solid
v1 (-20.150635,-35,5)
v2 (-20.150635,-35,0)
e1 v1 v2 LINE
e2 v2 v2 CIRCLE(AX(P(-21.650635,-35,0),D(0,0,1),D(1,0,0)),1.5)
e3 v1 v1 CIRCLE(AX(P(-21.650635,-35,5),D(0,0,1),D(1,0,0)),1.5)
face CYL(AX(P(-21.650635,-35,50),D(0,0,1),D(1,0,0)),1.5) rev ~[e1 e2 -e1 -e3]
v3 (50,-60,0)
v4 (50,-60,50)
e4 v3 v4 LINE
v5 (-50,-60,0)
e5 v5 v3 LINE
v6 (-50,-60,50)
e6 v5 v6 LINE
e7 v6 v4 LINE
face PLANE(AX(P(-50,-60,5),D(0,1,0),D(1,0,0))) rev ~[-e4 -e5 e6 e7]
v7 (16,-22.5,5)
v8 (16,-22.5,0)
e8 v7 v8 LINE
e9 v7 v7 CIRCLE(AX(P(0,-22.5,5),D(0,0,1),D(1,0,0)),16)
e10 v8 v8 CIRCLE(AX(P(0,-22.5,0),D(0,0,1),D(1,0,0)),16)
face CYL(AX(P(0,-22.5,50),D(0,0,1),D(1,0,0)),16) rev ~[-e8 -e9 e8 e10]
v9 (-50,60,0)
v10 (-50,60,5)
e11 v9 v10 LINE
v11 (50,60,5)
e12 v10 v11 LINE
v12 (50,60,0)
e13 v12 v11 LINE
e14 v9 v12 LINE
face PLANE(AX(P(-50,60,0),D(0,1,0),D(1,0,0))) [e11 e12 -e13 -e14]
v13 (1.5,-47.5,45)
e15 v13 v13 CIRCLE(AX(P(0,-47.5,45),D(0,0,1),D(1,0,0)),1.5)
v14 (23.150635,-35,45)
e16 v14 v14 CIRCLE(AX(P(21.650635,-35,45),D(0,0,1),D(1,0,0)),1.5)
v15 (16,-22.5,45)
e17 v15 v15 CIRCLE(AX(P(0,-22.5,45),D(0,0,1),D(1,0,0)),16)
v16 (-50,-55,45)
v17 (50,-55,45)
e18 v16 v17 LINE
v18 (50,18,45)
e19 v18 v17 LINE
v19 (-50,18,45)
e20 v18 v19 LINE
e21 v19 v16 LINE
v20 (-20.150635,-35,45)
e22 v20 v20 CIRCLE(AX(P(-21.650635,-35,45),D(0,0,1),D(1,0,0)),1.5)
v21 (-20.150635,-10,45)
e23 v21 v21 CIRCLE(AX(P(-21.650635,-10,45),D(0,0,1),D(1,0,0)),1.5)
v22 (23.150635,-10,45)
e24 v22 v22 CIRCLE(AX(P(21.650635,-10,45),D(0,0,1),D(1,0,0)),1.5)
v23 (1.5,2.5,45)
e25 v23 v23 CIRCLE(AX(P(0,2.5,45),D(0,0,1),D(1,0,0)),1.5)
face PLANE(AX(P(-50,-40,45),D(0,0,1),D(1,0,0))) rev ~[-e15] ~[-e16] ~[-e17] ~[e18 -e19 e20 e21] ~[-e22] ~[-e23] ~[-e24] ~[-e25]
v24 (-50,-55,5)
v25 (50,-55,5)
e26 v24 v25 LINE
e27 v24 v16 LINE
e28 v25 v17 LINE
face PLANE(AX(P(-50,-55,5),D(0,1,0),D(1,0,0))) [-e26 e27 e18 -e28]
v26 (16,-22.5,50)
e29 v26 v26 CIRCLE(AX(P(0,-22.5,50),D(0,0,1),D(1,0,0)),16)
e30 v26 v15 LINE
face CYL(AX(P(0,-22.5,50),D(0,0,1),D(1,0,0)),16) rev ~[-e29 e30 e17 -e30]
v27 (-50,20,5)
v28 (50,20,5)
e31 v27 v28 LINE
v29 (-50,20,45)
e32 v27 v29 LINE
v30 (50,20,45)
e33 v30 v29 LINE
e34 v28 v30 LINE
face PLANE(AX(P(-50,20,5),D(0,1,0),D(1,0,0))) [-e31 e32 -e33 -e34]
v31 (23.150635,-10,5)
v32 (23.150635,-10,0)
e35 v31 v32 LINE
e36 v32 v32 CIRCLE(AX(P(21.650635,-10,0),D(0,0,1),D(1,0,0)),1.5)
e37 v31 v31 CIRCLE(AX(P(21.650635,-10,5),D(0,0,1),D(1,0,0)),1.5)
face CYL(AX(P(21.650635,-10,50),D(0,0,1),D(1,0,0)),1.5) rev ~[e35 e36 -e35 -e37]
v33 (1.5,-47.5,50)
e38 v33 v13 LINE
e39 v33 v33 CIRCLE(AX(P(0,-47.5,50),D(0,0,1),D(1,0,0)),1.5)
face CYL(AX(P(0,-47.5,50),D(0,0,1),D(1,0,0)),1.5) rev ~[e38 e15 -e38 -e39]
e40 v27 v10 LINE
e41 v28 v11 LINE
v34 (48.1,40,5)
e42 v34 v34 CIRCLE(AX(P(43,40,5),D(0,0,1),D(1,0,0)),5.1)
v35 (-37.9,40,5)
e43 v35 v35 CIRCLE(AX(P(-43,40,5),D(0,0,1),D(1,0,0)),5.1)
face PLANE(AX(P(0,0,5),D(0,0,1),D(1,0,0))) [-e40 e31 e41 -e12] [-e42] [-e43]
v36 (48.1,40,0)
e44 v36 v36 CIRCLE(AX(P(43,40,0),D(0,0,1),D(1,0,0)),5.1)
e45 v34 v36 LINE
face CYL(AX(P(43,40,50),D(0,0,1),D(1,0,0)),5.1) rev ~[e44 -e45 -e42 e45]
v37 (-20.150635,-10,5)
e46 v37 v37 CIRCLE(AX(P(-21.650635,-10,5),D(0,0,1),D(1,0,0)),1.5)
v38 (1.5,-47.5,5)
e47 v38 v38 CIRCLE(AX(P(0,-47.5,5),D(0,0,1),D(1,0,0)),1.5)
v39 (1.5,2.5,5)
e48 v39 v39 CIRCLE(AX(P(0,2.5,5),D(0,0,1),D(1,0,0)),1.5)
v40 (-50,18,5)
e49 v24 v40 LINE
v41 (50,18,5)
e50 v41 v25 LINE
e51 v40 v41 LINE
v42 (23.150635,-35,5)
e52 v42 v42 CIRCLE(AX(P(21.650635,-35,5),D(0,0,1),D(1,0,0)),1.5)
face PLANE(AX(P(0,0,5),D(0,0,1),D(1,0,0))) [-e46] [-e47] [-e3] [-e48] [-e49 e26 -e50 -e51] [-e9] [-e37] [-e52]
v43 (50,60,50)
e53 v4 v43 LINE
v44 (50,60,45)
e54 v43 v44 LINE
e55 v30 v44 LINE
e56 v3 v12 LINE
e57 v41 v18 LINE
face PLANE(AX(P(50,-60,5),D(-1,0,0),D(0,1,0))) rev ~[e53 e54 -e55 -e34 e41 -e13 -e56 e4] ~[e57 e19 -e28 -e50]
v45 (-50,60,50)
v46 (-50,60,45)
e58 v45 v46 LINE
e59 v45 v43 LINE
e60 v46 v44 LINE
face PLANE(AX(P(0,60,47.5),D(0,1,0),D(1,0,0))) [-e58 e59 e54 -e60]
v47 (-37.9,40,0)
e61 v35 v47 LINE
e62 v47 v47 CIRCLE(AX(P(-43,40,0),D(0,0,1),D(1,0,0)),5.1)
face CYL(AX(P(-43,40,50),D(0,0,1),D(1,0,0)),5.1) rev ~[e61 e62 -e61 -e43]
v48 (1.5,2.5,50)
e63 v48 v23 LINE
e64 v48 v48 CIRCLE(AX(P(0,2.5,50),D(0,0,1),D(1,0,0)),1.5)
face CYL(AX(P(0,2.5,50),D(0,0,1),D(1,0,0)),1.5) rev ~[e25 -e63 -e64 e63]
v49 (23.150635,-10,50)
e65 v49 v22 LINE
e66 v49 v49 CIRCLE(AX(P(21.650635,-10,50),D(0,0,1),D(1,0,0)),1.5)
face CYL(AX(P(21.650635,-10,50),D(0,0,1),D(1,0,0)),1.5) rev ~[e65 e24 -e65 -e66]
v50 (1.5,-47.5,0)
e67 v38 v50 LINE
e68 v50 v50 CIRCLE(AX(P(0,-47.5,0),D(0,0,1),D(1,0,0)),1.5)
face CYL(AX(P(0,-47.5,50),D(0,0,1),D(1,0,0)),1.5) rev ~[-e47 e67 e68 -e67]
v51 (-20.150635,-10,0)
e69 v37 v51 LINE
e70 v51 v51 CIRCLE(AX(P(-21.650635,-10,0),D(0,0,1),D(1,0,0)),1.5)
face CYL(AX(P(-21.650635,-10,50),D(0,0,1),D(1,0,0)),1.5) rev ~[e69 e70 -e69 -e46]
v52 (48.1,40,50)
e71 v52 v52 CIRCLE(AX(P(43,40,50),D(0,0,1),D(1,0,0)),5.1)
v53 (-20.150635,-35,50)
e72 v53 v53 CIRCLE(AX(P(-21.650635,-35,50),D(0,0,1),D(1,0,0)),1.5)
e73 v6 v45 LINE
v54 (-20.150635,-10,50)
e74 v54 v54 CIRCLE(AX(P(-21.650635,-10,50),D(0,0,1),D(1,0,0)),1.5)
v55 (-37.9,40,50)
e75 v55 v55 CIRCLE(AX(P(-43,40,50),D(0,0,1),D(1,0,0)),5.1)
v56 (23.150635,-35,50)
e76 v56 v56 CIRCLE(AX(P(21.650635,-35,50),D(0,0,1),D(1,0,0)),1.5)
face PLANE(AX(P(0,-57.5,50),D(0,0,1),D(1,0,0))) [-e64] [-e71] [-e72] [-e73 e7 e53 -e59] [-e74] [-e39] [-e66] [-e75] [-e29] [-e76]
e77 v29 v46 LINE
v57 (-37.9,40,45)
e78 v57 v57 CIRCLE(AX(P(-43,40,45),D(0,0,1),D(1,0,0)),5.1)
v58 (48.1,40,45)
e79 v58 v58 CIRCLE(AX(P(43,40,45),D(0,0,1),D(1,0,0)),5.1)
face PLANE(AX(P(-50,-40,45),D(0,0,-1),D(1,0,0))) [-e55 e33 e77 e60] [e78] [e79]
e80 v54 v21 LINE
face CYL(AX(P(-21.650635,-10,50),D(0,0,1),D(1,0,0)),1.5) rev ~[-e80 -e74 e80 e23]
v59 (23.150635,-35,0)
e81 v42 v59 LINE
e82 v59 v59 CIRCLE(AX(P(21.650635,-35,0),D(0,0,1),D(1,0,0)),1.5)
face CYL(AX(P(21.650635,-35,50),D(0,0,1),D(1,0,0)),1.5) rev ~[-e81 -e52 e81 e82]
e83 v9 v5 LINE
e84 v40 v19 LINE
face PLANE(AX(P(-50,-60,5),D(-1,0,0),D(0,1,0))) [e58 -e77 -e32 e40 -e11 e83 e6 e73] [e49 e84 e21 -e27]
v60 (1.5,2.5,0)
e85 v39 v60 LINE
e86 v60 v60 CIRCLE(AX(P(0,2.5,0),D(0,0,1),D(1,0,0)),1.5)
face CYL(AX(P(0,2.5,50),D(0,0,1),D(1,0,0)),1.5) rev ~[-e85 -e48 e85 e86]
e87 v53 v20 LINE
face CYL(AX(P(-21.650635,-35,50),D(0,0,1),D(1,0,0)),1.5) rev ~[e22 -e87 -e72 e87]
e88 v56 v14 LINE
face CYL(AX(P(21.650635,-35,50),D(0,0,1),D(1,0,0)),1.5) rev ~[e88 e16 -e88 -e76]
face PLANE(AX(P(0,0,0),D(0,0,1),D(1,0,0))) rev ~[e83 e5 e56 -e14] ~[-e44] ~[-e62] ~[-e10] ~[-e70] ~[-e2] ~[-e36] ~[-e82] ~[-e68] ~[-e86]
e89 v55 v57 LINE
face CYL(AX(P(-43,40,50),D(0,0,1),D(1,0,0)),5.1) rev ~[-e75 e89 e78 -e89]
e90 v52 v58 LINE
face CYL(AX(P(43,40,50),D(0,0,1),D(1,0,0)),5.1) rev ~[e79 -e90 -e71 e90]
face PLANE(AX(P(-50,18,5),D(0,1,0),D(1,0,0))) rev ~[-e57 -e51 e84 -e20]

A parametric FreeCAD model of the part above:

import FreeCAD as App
import Part
import Sketcher
from FreeCAD import Vector

doc = App.newDocument("Part")
body = doc.addObject("PartDesign::Body", "Body")

sketch1 = body.newObject("Sketcher::SketchObject", "Sketch")
sketch1.AttachmentSupport = (doc.getObject("XY_Plane"), [""])
sketch1.MapMode = "FlatFace"
sketch1.addGeometry([
    Part.LineSegment(Vector(-50, 60, 0), Vector(-50, -60, 0)),
    Part.LineSegment(Vector(-50, -60, 0), Vector(50, -60, 0)),
    Part.LineSegment(Vector(50, -60, 0), Vector(50, 60, 0)),
    Part.LineSegment(Vector(50, 60, 0), Vector(-50, 60, 0)),
], False)
sketch1.addConstraint([
    Sketcher.Constraint("Coincident", 0, 2, 1, 1),
    Sketcher.Constraint("Coincident", 1, 2, 2, 1),
    Sketcher.Constraint("Coincident", 2, 2, 3, 1),
    Sketcher.Constraint("Coincident", 3, 2, 0, 1),
    Sketcher.Constraint("Vertical", 0),
    Sketcher.Constraint("Horizontal", 1),
    Sketcher.Constraint("Vertical", 2),
    Sketcher.Constraint("Horizontal", 3),
    Sketcher.Constraint("Symmetric", 0, 2, 2, 2, -1, 1),
    Sketcher.Constraint("DistanceX", 1, 1, 1, 2, 100.0),
    Sketcher.Constraint("DistanceY", 0, 2, 0, 1, 120.0),
])
pad1 = body.newObject("PartDesign::Pad", "Pad")
pad1.Profile = sketch1
pad1.Length = 5

sketch2 = body.newObject("Sketcher::SketchObject", "Sketch001")
sketch2.AttachmentSupport = (doc.getObject("XY_Plane"), [""])
sketch2.MapMode = "FlatFace"
sketch2.AttachmentOffset = App.Placement(Vector(0, 0, 5), App.Rotation())
sketch2.addGeometry([
    Part.LineSegment(Vector(-50, 20, 0), Vector(-50, 18, 0)),
    Part.LineSegment(Vector(-50, 18, 0), Vector(50, 18, 0)),
    Part.LineSegment(Vector(50, 18, 0), Vector(50, 20, 0)),
    Part.LineSegment(Vector(50, 20, 0), Vector(-50, 20, 0)),
], False)
sketch2.addConstraint([
    Sketcher.Constraint("Coincident", 0, 2, 1, 1),
    Sketcher.Constraint("Coincident", 1, 2, 2, 1),
    Sketcher.Constraint("Coincident", 2, 2, 3, 1),
    Sketcher.Constraint("Coincident", 3, 2, 0, 1),
    Sketcher.Constraint("Vertical", 0),
    Sketcher.Constraint("Horizontal", 1),
    Sketcher.Constraint("Vertical", 2),
    Sketcher.Constraint("Horizontal", 3),
    Sketcher.Constraint("DistanceX", 1, 1, 1, 2, 100.0),
    Sketcher.Constraint("DistanceY", 0, 2, 0, 1, 2.0),
    Sketcher.Constraint("DistanceX", 0, 2, -1, 1, 50.0),
    Sketcher.Constraint("DistanceY", -1, 1, 0, 2, 18.0),
])
pad2 = body.newObject("PartDesign::Pad", "Pad001")
pad2.Profile = sketch2
pad2.Length = 45

sketch3 = body.newObject("Sketcher::SketchObject", "Sketch002")
sketch3.AttachmentSupport = (doc.getObject("XZ_Plane"), [""])
sketch3.MapMode = "FlatFace"
sketch3.AttachmentOffset = App.Placement(Vector(0, 0, -20), App.Rotation())
sketch3.addGeometry([
    Part.LineSegment(Vector(-50, 45, 0), Vector(-50, 50, 0)),
    Part.LineSegment(Vector(-50, 50, 0), Vector(50, 50, 0)),
    Part.LineSegment(Vector(50, 50, 0), Vector(50, 45, 0)),
    Part.LineSegment(Vector(50, 45, 0), Vector(-50, 45, 0)),
], False)
sketch3.addConstraint([
    Sketcher.Constraint("Coincident", 0, 2, 1, 1),
    Sketcher.Constraint("Coincident", 1, 2, 2, 1),
    Sketcher.Constraint("Coincident", 2, 2, 3, 1),
    Sketcher.Constraint("Coincident", 3, 2, 0, 1),
    Sketcher.Constraint("Vertical", 0),
    Sketcher.Constraint("Horizontal", 1),
    Sketcher.Constraint("Vertical", 2),
    Sketcher.Constraint("Horizontal", 3),
    Sketcher.Constraint("DistanceX", 1, 1, 1, 2, 100.0),
    Sketcher.Constraint("DistanceY", 0, 1, 0, 2, 5.0),
    Sketcher.Constraint("DistanceX", 0, 2, -1, 1, 50.0),
    Sketcher.Constraint("DistanceY", -1, 1, 0, 2, 50.0),
])
pad3 = body.newObject("PartDesign::Pad", "Pad002")
pad3.Profile = sketch3
pad3.Type = "TwoLengths"
pad3.Length = 40
pad3.Length2 = 60
pad3.Reversed = True

sketch4 = body.newObject("Sketcher::SketchObject", "Sketch003")
sketch4.AttachmentSupport = (doc.getObject("XZ_Plane"), [""])
sketch4.MapMode = "FlatFace"
sketch4.AttachmentOffset = App.Placement(Vector(0, 0, 40), App.Rotation())
sketch4.addGeometry([
    Part.LineSegment(Vector(-50, 50, 0), Vector(-50, 45, 0)),
    Part.LineSegment(Vector(-50, 45, 0), Vector(50, 45, 0)),
    Part.LineSegment(Vector(50, 45, 0), Vector(50, 50, 0)),
    Part.LineSegment(Vector(50, 50, 0), Vector(-50, 50, 0)),
    Part.LineSegment(Vector(-50, 5, 0), Vector(-50, 0, 0)),
    Part.LineSegment(Vector(-50, 0, 0), Vector(50, 0, 0)),
    Part.LineSegment(Vector(50, 0, 0), Vector(50, 5, 0)),
    Part.LineSegment(Vector(50, 5, 0), Vector(-50, 5, 0)),
], False)
sketch4.addConstraint([
    Sketcher.Constraint("Coincident", 0, 2, 1, 1),
    Sketcher.Constraint("Coincident", 1, 2, 2, 1),
    Sketcher.Constraint("Coincident", 2, 2, 3, 1),
    Sketcher.Constraint("Coincident", 3, 2, 0, 1),
    Sketcher.Constraint("Coincident", 4, 2, 5, 1),
    Sketcher.Constraint("Coincident", 5, 2, 6, 1),
    Sketcher.Constraint("Coincident", 6, 2, 7, 1),
    Sketcher.Constraint("Coincident", 7, 2, 4, 1),
    Sketcher.Constraint("Vertical", 0),
    Sketcher.Constraint("Horizontal", 1),
    Sketcher.Constraint("Vertical", 2),
    Sketcher.Constraint("Horizontal", 3),
    Sketcher.Constraint("Vertical", 4),
    Sketcher.Constraint("Horizontal", 5),
    Sketcher.Constraint("Vertical", 6),
    Sketcher.Constraint("Horizontal", 7),
    Sketcher.Constraint("Symmetric", 4, 2, 5, 2, -1, 1),
    Sketcher.Constraint("Vertical", 3, 2, 4, 2),
    Sketcher.Constraint("Vertical", 2, 2, 5, 2),
    Sketcher.Constraint("Equal", 2, 4),
    Sketcher.Constraint("DistanceX", 1, 1, 1, 2, 100.0),
    Sketcher.Constraint("DistanceY", 0, 2, 0, 1, 5.0),
    Sketcher.Constraint("DistanceY", -1, 1, 0, 2, 45.0),
])
pad4 = body.newObject("PartDesign::Pad", "Pad003")
pad4.Profile = sketch4
pad4.Length = 15

sketch5 = body.newObject("Sketcher::SketchObject", "Sketch004")
sketch5.AttachmentSupport = (doc.getObject("XY_Plane"), [""])
sketch5.MapMode = "FlatFace"
sketch5.AttachmentOffset = App.Placement(Vector(0, 0, 5), App.Rotation())
sketch5.addGeometry([
    Part.LineSegment(Vector(-50, -55, 0), Vector(-50, -60, 0)),
    Part.LineSegment(Vector(-50, -60, 0), Vector(50, -60, 0)),
    Part.LineSegment(Vector(50, -60, 0), Vector(50, -55, 0)),
    Part.LineSegment(Vector(50, -55, 0), Vector(-50, -55, 0)),
], False)
sketch5.addConstraint([
    Sketcher.Constraint("Coincident", 0, 2, 1, 1),
    Sketcher.Constraint("Coincident", 1, 2, 2, 1),
    Sketcher.Constraint("Coincident", 2, 2, 3, 1),
    Sketcher.Constraint("Coincident", 3, 2, 0, 1),
    Sketcher.Constraint("Vertical", 0),
    Sketcher.Constraint("Horizontal", 1),
    Sketcher.Constraint("Vertical", 2),
    Sketcher.Constraint("Horizontal", 3),
    Sketcher.Constraint("DistanceX", 1, 1, 1, 2, 100.0),
    Sketcher.Constraint("DistanceY", 0, 2, 0, 1, 5.0),
    Sketcher.Constraint("DistanceX", 0, 2, -1, 1, 50.0),
    Sketcher.Constraint("DistanceY", 0, 2, -1, 1, 60.0),
])
pad5 = body.newObject("PartDesign::Pad", "Pad004")
pad5.Profile = sketch5
pad5.Length = 45

sketch6 = body.newObject("Sketcher::SketchObject", "Sketch005")
sketch6.AttachmentSupport = (doc.getObject("XY_Plane"), [""])
sketch6.MapMode = "FlatFace"
sketch6.AttachmentOffset = App.Placement(Vector(0, 0, 50), App.Rotation())
sketch6.addGeometry([
    Part.Circle(Vector(0, -22.5, 0), Vector(0, 0, 1), 16),
    Part.Circle(Vector(0, 2.5, 0), Vector(0, 0, 1), 1.5),
    Part.Circle(Vector(21.7, -10, 0), Vector(0, 0, 1), 1.5),
    Part.Circle(Vector(21.7, -35, 0), Vector(0, 0, 1), 1.5),
    Part.Circle(Vector(0, -47.5, 0), Vector(0, 0, 1), 1.5),
    Part.Circle(Vector(-21.7, -35, 0), Vector(0, 0, 1), 1.5),
    Part.Circle(Vector(-21.7, -10, 0), Vector(0, 0, 1), 1.5),
], False)
sketch6.addConstraint([
    Sketcher.Constraint("Equal", 1, 2),
    Sketcher.Constraint("Equal", 2, 3),
    Sketcher.Constraint("Equal", 3, 4),
    Sketcher.Constraint("Equal", 4, 5),
    Sketcher.Constraint("Equal", 5, 6),
    Sketcher.Constraint("Symmetric", 3, 3, 5, 3, -2),
    Sketcher.Constraint("Symmetric", 2, 3, 6, 3, -2),
    Sketcher.Constraint("PointOnObject", 0, 3, -2),
    Sketcher.Constraint("PointOnObject", 1, 3, -2),
    Sketcher.Constraint("PointOnObject", 4, 3, -2),
    Sketcher.Constraint("Vertical", 2, 3, 3, 3),
    Sketcher.Constraint("Diameter", 0, 32.0),
    Sketcher.Constraint("Diameter", 1, 3.0),
    Sketcher.Constraint("DistanceY", 2, 3, -1, 1, 10.0),
    Sketcher.Constraint("DistanceY", 3, 3, -1, 1, 35.0),
    Sketcher.Constraint("DistanceY", 0, 3, 1, 3, 25.0),
    Sketcher.Constraint("DistanceY", 4, 3, 0, 3, 25.0),
    Sketcher.Constraint("DistanceY", 0, 3, -1, 1, 22.5),
    Sketcher.Constraint("DistanceX", 5, 3, 3, 3, 43.30127),
])
pocket1 = body.newObject("PartDesign::Pocket", "Pocket")
pocket1.Profile = sketch6
pocket1.Type = "ThroughAll"

sketch7 = body.newObject("Sketcher::SketchObject", "Sketch006")
sketch7.AttachmentSupport = (doc.getObject("XY_Plane"), [""])
sketch7.MapMode = "FlatFace"
sketch7.AttachmentOffset = App.Placement(Vector(0, 0, 50), App.Rotation())
sketch7.addGeometry([
    Part.Circle(Vector(-43, 40, 0), Vector(0, 0, 1), 5),
    Part.Circle(Vector(43, 40, 0), Vector(0, 0, 1), 5),
], False)
sketch7.addConstraint([
    Sketcher.Constraint("Equal", 0, 1),
    Sketcher.Constraint("Symmetric", 0, 3, 1, 3, -2),
    Sketcher.Constraint("Diameter", 0, 10.2),
    Sketcher.Constraint("DistanceX", 0, 3, -1, 1, 43.0),
    Sketcher.Constraint("DistanceY", -1, 1, 0, 3, 40.0),
])
pocket2 = body.newObject("PartDesign::Pocket", "Pocket001")
pocket2.Profile = sketch7
pocket2.Type = "ThroughAll"

doc.recompute()
